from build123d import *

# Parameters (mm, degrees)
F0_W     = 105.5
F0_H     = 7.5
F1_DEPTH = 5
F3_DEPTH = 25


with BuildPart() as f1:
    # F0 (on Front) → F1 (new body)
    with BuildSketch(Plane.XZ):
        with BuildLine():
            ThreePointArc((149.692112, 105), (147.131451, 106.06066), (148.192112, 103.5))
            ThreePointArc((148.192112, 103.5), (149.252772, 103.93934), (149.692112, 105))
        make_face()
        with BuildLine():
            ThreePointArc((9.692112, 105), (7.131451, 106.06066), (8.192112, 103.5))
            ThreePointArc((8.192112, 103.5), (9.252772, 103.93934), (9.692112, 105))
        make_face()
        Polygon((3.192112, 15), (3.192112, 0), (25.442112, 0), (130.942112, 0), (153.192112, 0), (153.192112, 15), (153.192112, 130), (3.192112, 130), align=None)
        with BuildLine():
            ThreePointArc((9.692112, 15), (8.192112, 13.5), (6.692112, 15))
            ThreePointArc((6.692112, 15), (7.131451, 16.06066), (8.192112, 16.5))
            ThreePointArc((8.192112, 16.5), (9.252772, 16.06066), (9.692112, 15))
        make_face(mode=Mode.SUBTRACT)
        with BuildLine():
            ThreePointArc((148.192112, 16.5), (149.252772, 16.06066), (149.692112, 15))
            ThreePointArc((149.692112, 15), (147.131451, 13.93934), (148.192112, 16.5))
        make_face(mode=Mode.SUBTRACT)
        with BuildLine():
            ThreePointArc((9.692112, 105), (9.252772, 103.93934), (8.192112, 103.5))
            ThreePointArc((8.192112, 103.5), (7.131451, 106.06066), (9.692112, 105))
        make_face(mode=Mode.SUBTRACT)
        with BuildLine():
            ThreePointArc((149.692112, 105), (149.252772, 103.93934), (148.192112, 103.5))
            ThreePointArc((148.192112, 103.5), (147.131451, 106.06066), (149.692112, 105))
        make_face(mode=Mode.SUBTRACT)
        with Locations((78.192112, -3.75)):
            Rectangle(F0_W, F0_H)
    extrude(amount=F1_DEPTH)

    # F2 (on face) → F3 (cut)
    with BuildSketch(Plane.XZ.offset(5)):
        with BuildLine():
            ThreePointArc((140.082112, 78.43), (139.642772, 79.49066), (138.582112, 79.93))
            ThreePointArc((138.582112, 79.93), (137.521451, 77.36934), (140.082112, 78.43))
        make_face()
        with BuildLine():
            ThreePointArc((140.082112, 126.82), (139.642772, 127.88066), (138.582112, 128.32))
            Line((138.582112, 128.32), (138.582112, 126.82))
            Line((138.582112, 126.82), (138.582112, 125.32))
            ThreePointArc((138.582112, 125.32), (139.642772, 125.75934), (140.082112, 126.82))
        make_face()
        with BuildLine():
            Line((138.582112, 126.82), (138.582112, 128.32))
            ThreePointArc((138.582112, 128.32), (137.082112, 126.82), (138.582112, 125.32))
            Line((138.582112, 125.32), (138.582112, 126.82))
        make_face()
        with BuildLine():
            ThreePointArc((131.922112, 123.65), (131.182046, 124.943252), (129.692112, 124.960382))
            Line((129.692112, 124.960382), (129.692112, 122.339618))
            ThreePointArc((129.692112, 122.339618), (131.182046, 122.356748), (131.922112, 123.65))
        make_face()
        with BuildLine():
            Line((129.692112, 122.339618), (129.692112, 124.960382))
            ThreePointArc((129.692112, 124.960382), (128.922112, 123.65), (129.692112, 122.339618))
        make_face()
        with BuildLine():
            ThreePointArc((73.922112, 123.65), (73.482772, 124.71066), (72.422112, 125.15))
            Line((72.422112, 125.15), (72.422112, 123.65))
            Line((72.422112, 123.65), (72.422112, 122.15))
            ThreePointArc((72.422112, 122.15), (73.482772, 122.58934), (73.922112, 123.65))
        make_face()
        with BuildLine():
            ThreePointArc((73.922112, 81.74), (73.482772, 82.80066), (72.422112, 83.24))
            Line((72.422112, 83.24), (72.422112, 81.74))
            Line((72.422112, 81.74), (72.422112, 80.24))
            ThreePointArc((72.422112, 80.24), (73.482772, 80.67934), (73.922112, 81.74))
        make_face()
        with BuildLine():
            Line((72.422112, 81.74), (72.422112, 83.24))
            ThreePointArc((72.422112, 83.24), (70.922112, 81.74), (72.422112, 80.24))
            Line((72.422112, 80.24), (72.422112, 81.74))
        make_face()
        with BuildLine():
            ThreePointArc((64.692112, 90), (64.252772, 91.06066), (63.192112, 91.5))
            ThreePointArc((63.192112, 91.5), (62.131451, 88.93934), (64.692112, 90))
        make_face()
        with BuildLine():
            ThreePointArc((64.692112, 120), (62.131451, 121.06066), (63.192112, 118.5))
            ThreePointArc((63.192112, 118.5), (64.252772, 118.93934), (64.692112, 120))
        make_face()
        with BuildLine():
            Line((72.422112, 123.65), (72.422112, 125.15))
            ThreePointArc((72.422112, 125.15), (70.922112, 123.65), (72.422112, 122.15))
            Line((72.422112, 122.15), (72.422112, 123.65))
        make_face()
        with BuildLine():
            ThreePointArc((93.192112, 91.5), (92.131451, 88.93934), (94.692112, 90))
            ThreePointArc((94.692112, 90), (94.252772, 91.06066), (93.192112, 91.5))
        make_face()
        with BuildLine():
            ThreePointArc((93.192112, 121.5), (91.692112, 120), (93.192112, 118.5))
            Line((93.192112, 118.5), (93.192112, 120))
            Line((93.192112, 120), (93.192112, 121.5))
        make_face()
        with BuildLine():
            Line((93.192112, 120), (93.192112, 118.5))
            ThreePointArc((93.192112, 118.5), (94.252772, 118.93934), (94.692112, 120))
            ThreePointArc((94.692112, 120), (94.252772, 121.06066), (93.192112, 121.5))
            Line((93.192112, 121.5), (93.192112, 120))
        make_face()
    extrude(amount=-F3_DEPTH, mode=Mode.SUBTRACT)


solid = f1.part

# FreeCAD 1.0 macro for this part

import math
import FreeCAD as App
import Part
import Sketcher
from FreeCAD import Vector
Q = App.Units.Quantity

doc = App.newDocument("Part")
body = doc.addObject("PartDesign::Body", "Body")

# Sketch on XZ plane
sketch1 = doc.addObject("Sketcher::SketchObject", "Sketch")
body.addObject(sketch1)
sketch1.AttachmentSupport = (doc.XZ_Plane, [""])
sketch1.MapMode = "FlatFace"
sketch1.addGeometry([
    Part.LineSegment(Vector(3.2, 0, 0), Vector(25.4, 0, 0)),  # 0
    Part.LineSegment(Vector(25.4, 0, 0), Vector(25.4, -7.5, 0)),  # 1
    Part.LineSegment(Vector(25.4, -7.5, 0), Vector(130.9, -7.5, 0)),  # 2
    Part.LineSegment(Vector(130.9, -7.5, 0), Vector(130.9, 0, 0)),  # 3
    Part.LineSegment(Vector(130.9, 0, 0), Vector(153.2, 0, 0)),  # 4
    Part.LineSegment(Vector(153.2, 0, 0), Vector(153.2, 130, 0)),  # 5
    Part.LineSegment(Vector(153.2, 130, 0), Vector(3.2, 130, 0)),  # 6
    Part.LineSegment(Vector(3.2, 130, 0), Vector(3.2, 0, 0)),  # 7
    Part.ArcOfCircle(Part.Circle(Vector(8.2, 15, 0), Vector(0, 0, 1), 1.5), math.radians(0), math.radians(90)),  # 8
    Part.ArcOfCircle(Part.Circle(Vector(8.2, 15, 0), Vector(0, 0, 1), 1.5), math.radians(180), math.radians(360)),  # 9
    Part.ArcOfCircle(Part.Circle(Vector(8.2, 15, 0), Vector(0, 0, 1), 1.5), math.radians(90), math.radians(180)),  # 10
    Part.ArcOfCircle(Part.Circle(Vector(148.2, 15, 0), Vector(0, 0, 1), 1.5), math.radians(90), math.radians(360)),  # 11
    Part.ArcOfCircle(Part.Circle(Vector(148.2, 15, 0), Vector(0, 0, 1), 1.5), math.radians(0), math.radians(90)),  # 12
    Part.ArcOfCircle(Part.Circle(Vector(8.2, 105, 0), Vector(0, 0, 1), 1.5), math.radians(0), math.radians(270)),  # 13
    Part.ArcOfCircle(Part.Circle(Vector(8.2, 105, 0), Vector(0, 0, 1), 1.5), math.radians(-90), math.radians(0)),  # 14
    Part.ArcOfCircle(Part.Circle(Vector(148.2, 105, 0), Vector(0, 0, 1), 1.5), math.radians(0), math.radians(270)),  # 15
    Part.ArcOfCircle(Part.Circle(Vector(148.2, 105, 0), Vector(0, 0, 1), 1.5), math.radians(-90), math.radians(0)),  # 16
], False)
sketch1.addConstraint([
    Sketcher.Constraint("Coincident", 0, 2, 1, 1),
    Sketcher.Constraint("Coincident", 1, 2, 2, 1),
    Sketcher.Constraint("Coincident", 2, 2, 3, 1),
    Sketcher.Constraint("Coincident", 3, 2, 4, 1),
    Sketcher.Constraint("Coincident", 4, 2, 5, 1),
    Sketcher.Constraint("Coincident", 5, 2, 6, 1),
    Sketcher.Constraint("Coincident", 6, 2, 7, 1),
    Sketcher.Constraint("Coincident", 7, 2, 0, 1),
    Sketcher.Constraint("Tangent", 8, 1, 9, 2),
    Sketcher.Constraint("Tangent", 9, 1, 10, 2),
    Sketcher.Constraint("Tangent", 10, 1, 8, 2),
    Sketcher.Constraint("Tangent", 11, 1, 12, 2),
    Sketcher.Constraint("Coincident", 12, 1, 11, 2),
    Sketcher.Constraint("Tangent", 13, 1, 14, 2),
    Sketcher.Constraint("Coincident", 14, 1, 13, 2),
    Sketcher.Constraint("Tangent", 15, 1, 16, 2),
    Sketcher.Constraint("Coincident", 16, 1, 15, 2),
    Sketcher.Constraint("Horizontal", 0),
    Sketcher.Constraint("Vertical", 1),
    Sketcher.Constraint("Horizontal", 2),
    Sketcher.Constraint("Vertical", 3),
    Sketcher.Constraint("Horizontal", 4),
    Sketcher.Constraint("Vertical", 5),
    Sketcher.Constraint("Horizontal", 6),
    Sketcher.Constraint("Vertical", 7),
    Sketcher.Constraint("Equal", 10, 11),
    Sketcher.Constraint("Equal", 12, 13),
    Sketcher.Constraint("Equal", 14, 15),
    Sketcher.Constraint("PointOnObject", 0, 2, -1),
    Sketcher.Constraint("PointOnObject", 3, 2, -1),
    Sketcher.Constraint("Horizontal", 10, 3, 11, 3),
    Sketcher.Constraint("Horizontal", 14, 3, 15, 3),
    Sketcher.Constraint("Horizontal", 12, 3, 8, 1),
    Sketcher.Constraint("Horizontal", 8, 1, 9, 1),
    Sketcher.Constraint("Horizontal", 9, 1, 12, 1),
    Sketcher.Constraint("Horizontal", 16, 3, 13, 1),
    Sketcher.Constraint("Horizontal", 13, 1, 15, 1),
    Sketcher.Constraint("Vertical", 10, 3, 13, 3),
    Sketcher.Constraint("Vertical", 12, 3, 15, 3),
    Sketcher.Constraint("Vertical", 14, 3, 10, 1),
    Sketcher.Constraint("Vertical", 16, 3, 11, 1),
    Sketcher.Constraint("Vertical", 10, 1, 14, 1),
    Sketcher.Constraint("Vertical", 11, 1, 16, 1),
    Sketcher.Constraint("Equal", 0, 4),
    Sketcher.Constraint("Radius", 8, Q("1.500001 mm")),
    Sketcher.Constraint("DistanceX", 6, 2, 6, 1, Q("150 mm")),
    Sketcher.Constraint("DistanceY", 5, 1, 5, 2, Q("130 mm")),
    Sketcher.Constraint("DistanceX", 2, 1, 2, 2, Q("105.5 mm")),
    Sketcher.Constraint("DistanceY", 1, 2, 1, 1, Q("7.5 mm")),
    Sketcher.Constraint("DistanceY", -1, 1, 8, 3, Q("14.999999 mm")),
    Sketcher.Constraint("DistanceY", -1, 1, 13, 3, Q("105 mm")),
    Sketcher.Constraint("DistanceX", 9, 3, 11, 3, Q("140 mm")),
    Sketcher.Constraint("DistanceX", 12, 3, 4, 2, Q("5.000001 mm")),
    Sketcher.Constraint("DistanceX", -1, 1, 8, 3, Q("8.192111 mm")),
])
pad1 = doc.addObject("PartDesign::Pad", "Pad")
body.addObject(pad1)
pad1.Profile = sketch1
pad1.Length = 5

# Sketch on XZ plane
sketch2 = doc.addObject("Sketcher::SketchObject", "Sketch001")
body.addObject(sketch2)
sketch2.AttachmentSupport = (doc.XZ_Plane, [""])
sketch2.MapMode = "FlatFace"
sketch2.AttachmentOffset = App.Placement(Vector(0, 0, 5), App.Rotation())
sketch2.addGeometry([
    Part.ArcOfCircle(Part.Circle(Vector(138.6, 78.4, 0), Vector(0, 0, 1), 1.5), math.radians(0), math.radians(90)),  # 0
    Part.ArcOfCircle(Part.Circle(Vector(138.6, 78.4, 0), Vector(0, 0, 1), 1.5), math.radians(90), math.radians(360)),  # 1
    Part.ArcOfCircle(Part.Circle(Vector(138.6, 126.8, 0), Vector(0, 0, 1), 1.5), math.radians(0), math.radians(90)),  # 2
    Part.ArcOfCircle(Part.Circle(Vector(138.6, 126.8, 0), Vector(0, 0, 1), 1.5), math.radians(90), math.radians(270)),  # 3
    Part.ArcOfCircle(Part.Circle(Vector(138.6, 126.8, 0), Vector(0, 0, 1), 1.5), math.radians(-90), math.radians(0)),  # 4
    Part.ArcOfCircle(Part.Circle(Vector(130.4, 123.7, 0), Vector(0, 0, 1), 1.5), math.radians(0), math.radians(119)),  # 5
    Part.ArcOfCircle(Part.Circle(Vector(130.4, 123.7, 0), Vector(0, 0, 1), 1.5), math.radians(119), math.radians(241)),  # 6
    Part.ArcOfCircle(Part.Circle(Vector(130.4, 123.6, 0), Vector(0, 0, 1), 1.5), math.radians(-119), math.radians(0)),  # 7
    Part.ArcOfCircle(Part.Circle(Vector(72.4, 123.6, 0), Vector(0, 0, 1), 1.5), math.radians(0), math.radians(90)),  # 8
    Part.ArcOfCircle(Part.Circle(Vector(72.4, 123.7, 0), Vector(0, 0, 1), 1.5), math.radians(90), math.radians(270)),  # 9
    Part.ArcOfCircle(Part.Circle(Vector(72.4, 123.7, 0), Vector(0, 0, 1), 1.5), math.radians(-90), math.radians(0)),  # 10
    Part.ArcOfCircle(Part.Circle(Vector(72.4, 81.7, 0), Vector(0, 0, 1), 1.5), math.radians(0), math.radians(90)),  # 11
    Part.ArcOfCircle(Part.Circle(Vector(72.4, 81.7, 0), Vector(0, 0, 1), 1.5), math.radians(90), math.radians(270)),  # 12
    Part.ArcOfCircle(Part.Circle(Vector(72.4, 81.7, 0), Vector(0, 0, 1), 1.5), math.radians(-90), math.radians(0)),  # 13
    Part.ArcOfCircle(Part.Circle(Vector(63.2, 90, 0), Vector(0, 0, 1), 1.5), math.radians(0), math.radians(90)),  # 14
    Part.ArcOfCircle(Part.Circle(Vector(63.2, 90, 0), Vector(0, 0, 1), 1.5), math.radians(90), math.radians(360)),  # 15
    Part.ArcOfCircle(Part.Circle(Vector(63.2, 120, 0), Vector(0, 0, 1), 1.5), math.radians(0), math.radians(270)),  # 16
    Part.ArcOfCircle(Part.Circle(Vector(63.2, 120, 0), Vector(0, 0, 1), 1.5), math.radians(-90), math.radians(0)),  # 17
    Part.ArcOfCircle(Part.Circle(Vector(93.2, 90, 0), Vector(0, 0, 1), 1.5), math.radians(90), math.radians(360)),  # 18
    Part.ArcOfCircle(Part.Circle(Vector(93.2, 90, 0), Vector(0, 0, 1), 1.5), math.radians(0), math.radians(90)),  # 19
    Part.ArcOfCircle(Part.Circle(Vector(93.2, 120, 0), Vector(0, 0, 1), 1.5), math.radians(90), math.radians(270)),  # 20
    Part.ArcOfCircle(Part.Circle(Vector(93.2, 120, 0), Vector(0, 0, 1), 1.5), math.radians(-90), math.radians(0)),  # 21
    Part.ArcOfCircle(Part.Circle(Vector(93.2, 120, 0), Vector(0, 0, 1), 1.5), math.radians(0), math.radians(90)),  # 22
], False)
sketch2.addConstraint([
    Sketcher.Constraint("Tangent", 0, 1, 1, 2),
    Sketcher.Constraint("Coincident", 1, 1, 0, 2),
    Sketcher.Constraint("Tangent", 2, 2, 3, 1),
    Sketcher.Constraint("Tangent", 3, 2, 4, 1),
    Sketcher.Constraint("Tangent", 4, 2, 2, 1),
    Sketcher.Constraint("Tangent", 5, 2, 6, 1),
    Sketcher.Constraint("Tangent", 6, 2, 7, 1),
    Sketcher.Constraint("Tangent", 7, 2, 5, 1),
    Sketcher.Constraint("Tangent", 8, 2, 9, 1),
    Sketcher.Constraint("Tangent", 9, 2, 10, 1),
    Sketcher.Constraint("Tangent", 10, 2, 8, 1),
    Sketcher.Constraint("Tangent", 11, 2, 12, 1),
    Sketcher.Constraint("Tangent", 12, 2, 13, 1),
    Sketcher.Constraint("Tangent", 13, 2, 11, 1),
    Sketcher.Constraint("Tangent", 14, 1, 15, 2),
    Sketcher.Constraint("Coincident", 15, 1, 14, 2),
    Sketcher.Constraint("Tangent", 16, 1, 17, 2),
    Sketcher.Constraint("Coincident", 17, 1, 16, 2),
    Sketcher.Constraint("Tangent", 18, 1, 19, 2),
    Sketcher.Constraint("Coincident", 19, 1, 18, 2),
    Sketcher.Constraint("Tangent", 20, 2, 21, 1),
    Sketcher.Constraint("Tangent", 21, 2, 22, 1),
    Sketcher.Constraint("Tangent", 22, 2, 20, 1),
    Sketcher.Constraint("Equal", 1, 2),
    Sketcher.Constraint("Equal", 4, 5),
    Sketcher.Constraint("Equal", 7, 8),
    Sketcher.Constraint("Equal", 10, 11),
    Sketcher.Constraint("Equal", 13, 14),
    Sketcher.Constraint("Equal", 15, 16),
    Sketcher.Constraint("Equal", 17, 18),
    Sketcher.Constraint("Equal", 19, 20),
    Sketcher.Constraint("Horizontal", 7, 3, 8, 3),
    Sketcher.Constraint("Horizontal", 15, 3, 18, 3),
    Sketcher.Constraint("Horizontal", 17, 3, 20, 3),
    Sketcher.Constraint("Horizontal", 1, 3, 0, 1),
    Sketcher.Constraint("Horizontal", 3, 3, 4, 2),
    Sketcher.Constraint("Horizontal", 10, 3, 7, 2),
    Sketcher.Constraint("Horizontal", 7, 2, 10, 2),
    Sketcher.Constraint("Horizontal", 12, 3, 13, 2),
    Sketcher.Constraint("Horizontal", 19, 3, 14, 1),
    Sketcher.Constraint("Horizontal", 22, 3, 16, 1),
    Sketcher.Constraint("Horizontal", 14, 1, 19, 1),
    Sketcher.Constraint("Horizontal", 16, 1, 21, 2),
    Sketcher.Constraint("Vertical", 1, 3, 2, 3),
    Sketcher.Constraint("Vertical", 10, 3, 11, 3),
    Sketcher.Constraint("Vertical", 15, 3, 16, 3),
    Sketcher.Constraint("Vertical", 19, 3, 20, 3),
    Sketcher.Constraint("Vertical", 4, 3, 1, 1),
    Sketcher.Constraint("Vertical", 1, 1, 2, 2),
    Sketcher.Constraint("Vertical", 2, 2, 3, 2),
    Sketcher.Constraint("Vertical", 5, 2, 6, 2),
    Sketcher.Constraint("Vertical", 13, 3, 8, 2),
    Sketcher.Constraint("Vertical", 8, 2, 9, 2),
    Sketcher.Constraint("Vertical", 9, 2, 11, 2),
    Sketcher.Constraint("Vertical", 11, 2, 12, 2),
    Sketcher.Constraint("Vertical", 17, 3, 15, 1),
    Sketcher.Constraint("Vertical", 15, 1, 17, 1),
    Sketcher.Constraint("Vertical", 22, 3, 18, 1),
    Sketcher.Constraint("Vertical", 18, 1, 20, 2),
    Sketcher.Constraint("Vertical", 20, 2, 22, 2),
    Sketcher.Constraint("Radius", 0, Q("1.500001 mm")),
    Sketcher.Constraint("DistanceY", -1, 1, 14, 3, Q("89.999999 mm")),
    Sketcher.Constraint("DistanceY", -1, 1, 16, 3, Q("120 mm")),
    Sketcher.Constraint("DistanceX", 8, 3, 5, 3, Q("58 mm")),
    Sketcher.Constraint("DistanceX", 15, 3, 18, 3, Q("30 mm")),
    Sketcher.Constraint("DistanceY", -1, 1, 0, 3, Q("78.429999 mm")),
    Sketcher.Constraint("DistanceY", -1, 1, 2, 3, Q("126.819999 mm")),
    Sketcher.Constraint("DistanceY", -1, 1, 5, 3, Q("123.65 mm")),
    Sketcher.Constraint("DistanceY", -1, 1, 11, 3, Q("81.739999 mm")),
    Sketcher.Constraint("DistanceX", 5, 3, 2, 3, Q("8.16 mm")),
    Sketcher.Constraint("DistanceX", 14, 3, 13, 3, Q("9.23 mm")),
    Sketcher.Constraint("DistanceX", 5, 2, 5, 3, Q("0.73 mm")),
    Sketcher.Constraint("DistanceX", -1, 1, 0, 3, Q("138.582111 mm")),
])
pocket1 = doc.addObject("PartDesign::Pocket", "Pocket")
body.addObject(pocket1)
pocket1.Profile = sketch2
pocket1.Length = 25

doc.recompute()
